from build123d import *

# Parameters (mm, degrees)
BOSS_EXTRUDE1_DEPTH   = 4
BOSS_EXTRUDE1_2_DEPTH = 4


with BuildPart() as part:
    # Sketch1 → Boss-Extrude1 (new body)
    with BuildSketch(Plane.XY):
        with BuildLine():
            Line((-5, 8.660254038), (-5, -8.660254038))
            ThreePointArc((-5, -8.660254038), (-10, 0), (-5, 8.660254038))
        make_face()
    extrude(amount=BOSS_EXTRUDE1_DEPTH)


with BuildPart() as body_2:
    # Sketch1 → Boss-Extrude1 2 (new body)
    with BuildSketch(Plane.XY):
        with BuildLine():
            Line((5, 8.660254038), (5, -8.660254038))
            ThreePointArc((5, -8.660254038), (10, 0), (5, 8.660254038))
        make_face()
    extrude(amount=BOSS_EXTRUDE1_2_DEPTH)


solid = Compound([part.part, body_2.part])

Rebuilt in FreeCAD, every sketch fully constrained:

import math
import FreeCAD as App
import Part
import Sketcher
from FreeCAD import Vector
Q = App.Units.Quantity

doc = App.newDocument("Part")
body = doc.addObject("PartDesign::Body", "Body")

# Sketch on XY plane
sketch1 = body.newObject("Sketcher::SketchObject", "Sketch")
sketch1.AttachmentSupport = (doc.getObject("XY_Plane"), [""])
sketch1.MapMode = "FlatFace"
sketch1.addGeometry(Part.LineSegment(Vector(-5, -9, 0), Vector(-5, 9, 0)), False)
sketch1.addGeometry(Part.ArcOfCircle(Part.Circle(Vector(0, 0, 0), Vector(0, 0, 1), 10), math.radians(120), math.radians(240)), False)
sketch1.addConstraint(Sketcher.Constraint("Coincident", 0, 1, 1, 2))
sketch1.addConstraint(Sketcher.Constraint("Coincident", 1, 1, 0, 2))
sketch1.addConstraint(Sketcher.Constraint("Vertical", 0))
sketch1.addConstraint(Sketcher.Constraint("Coincident", 1, 3, -1, 1))
sketch1.addConstraint(Sketcher.Constraint("Radius", 1, Q("10 mm")))
sketch1.addConstraint(Sketcher.Constraint("DistanceX", 0, 1, -1, 1, Q("5 mm")))
pad1 = body.newObject("PartDesign::Pad", "Pad")
pad1.Profile = sketch1
pad1.Length = 4
body2 = doc.addObject("PartDesign::Body", "Body001")

# Sketch on XY plane
sketch2 = body2.newObject("Sketcher::SketchObject", "Sketch001")
sketch2.AttachmentSupport = (doc.getObject("XY_Plane001"), [""])
sketch2.MapMode = "FlatFace"
sketch2.addGeometry(Part.LineSegment(Vector(5, 9, 0), Vector(5, -9, 0)), False)
sketch2.addGeometry(Part.ArcOfCircle(Part.Circle(Vector(0, 0, 0), Vector(0, 0, 1), 10), math.radians(-60), math.radians(60)), False)
sketch2.addConstraint(Sketcher.Constraint("Coincident", 0, 1, 1, 2))
sketch2.addConstraint(Sketcher.Constraint("Coincident", 1, 1, 0, 2))
sketch2.addConstraint(Sketcher.Constraint("Vertical", 0))
sketch2.addConstraint(Sketcher.Constraint("Coincident", 1, 3, -1, 1))
sketch2.addConstraint(Sketcher.Constraint("Radius", 1, Q("10 mm")))
sketch2.addConstraint(Sketcher.Constraint("DistanceX", -1, 1, 0, 1, Q("5 mm")))
pad2 = body2.newObject("PartDesign::Pad", "Pad001")
pad2.Profile = sketch2
pad2.Length = 4

doc.recompute()
